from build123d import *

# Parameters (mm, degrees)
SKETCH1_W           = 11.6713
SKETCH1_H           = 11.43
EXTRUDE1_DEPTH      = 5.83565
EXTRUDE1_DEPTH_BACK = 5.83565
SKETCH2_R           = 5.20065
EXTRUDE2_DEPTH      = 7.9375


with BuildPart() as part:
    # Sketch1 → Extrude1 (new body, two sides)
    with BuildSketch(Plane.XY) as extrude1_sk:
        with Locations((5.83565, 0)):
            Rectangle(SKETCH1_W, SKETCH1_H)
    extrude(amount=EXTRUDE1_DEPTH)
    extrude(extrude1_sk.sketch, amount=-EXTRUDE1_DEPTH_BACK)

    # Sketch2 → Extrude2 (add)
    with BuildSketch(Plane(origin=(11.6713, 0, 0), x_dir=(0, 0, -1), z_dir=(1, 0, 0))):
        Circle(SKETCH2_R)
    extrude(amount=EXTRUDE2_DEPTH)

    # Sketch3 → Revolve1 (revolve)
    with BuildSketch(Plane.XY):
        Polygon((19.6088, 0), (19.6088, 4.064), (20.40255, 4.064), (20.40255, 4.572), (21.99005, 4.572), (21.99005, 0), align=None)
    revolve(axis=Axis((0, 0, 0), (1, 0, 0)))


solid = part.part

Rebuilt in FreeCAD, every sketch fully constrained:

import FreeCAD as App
import Part
import Sketcher
from FreeCAD import Vector
Q = App.Units.Quantity

doc = App.newDocument("Part")
body = doc.addObject("PartDesign::Body", "Body")

sketch1 = doc.addObject("Sketcher::SketchObject", "Sketch")
body.addObject(sketch1)
sketch1.AttachmentSupport = (doc.XY_Plane, [""])
sketch1.MapMode = "FlatFace"
sketch1.addGeometry([
    Part.LineSegment(Vector(0, 5.715, 0), Vector(0, -5.715, 0)),
    Part.LineSegment(Vector(0, -5.715, 0), Vector(11.6713, -5.715, 0)),
    Part.LineSegment(Vector(11.6713, -5.715, 0), Vector(11.6713, 5.715, 0)),
    Part.LineSegment(Vector(11.6713, 5.715, 0), Vector(0, 5.715, 0)),
], False)
sketch1.addConstraint([
    Sketcher.Constraint("Coincident", 0, 2, 1, 1),
    Sketcher.Constraint("Coincident", 1, 2, 2, 1),
    Sketcher.Constraint("Coincident", 2, 2, 3, 1),
    Sketcher.Constraint("Coincident", 3, 2, 0, 1),
    Sketcher.Constraint("Vertical", 0),
    Sketcher.Constraint("Horizontal", 1),
    Sketcher.Constraint("Vertical", 2),
    Sketcher.Constraint("Horizontal", 3),
    Sketcher.Constraint("Symmetric", 0, 2, 3, 2, -1, 1),
    Sketcher.Constraint("DistanceY", 0, 2, 0, 1, Q("0.45 in")),
    Sketcher.Constraint("DistanceX", 1, 1, 1, 2, Q("0.4595 in")),
])
pad1 = doc.addObject("PartDesign::Pad", "Pad")
body.addObject(pad1)
pad1.Profile = sketch1
pad1.Type = "TwoLengths"
pad1.Length = 5.83565
pad1.Length2 = 5.83565

sketch2 = doc.addObject("Sketcher::SketchObject", "Sketch001")
body.addObject(sketch2)
sketch2.AttachmentSupport = (doc.YZ_Plane, [""])
sketch2.MapMode = "FlatFace"
sketch2.AttachmentOffset = App.Placement(Vector(0, 0, 0.4595 * 25.4), App.Rotation())
sketch2.addGeometry(Part.Circle(Vector(0, 0, 0), Vector(0, 0, 1), 5.20065), False)
sketch2.addConstraint([
    Sketcher.Constraint("Coincident", 0, 3, -1, 1),
    Sketcher.Constraint("Diameter", 0, Q("0.4095 in")),
])
pad2 = doc.addObject("PartDesign::Pad", "Pad001")
body.addObject(pad2)
pad2.Profile = sketch2
pad2.Length = Q("0.3125 in")

sketch3 = doc.addObject("Sketcher::SketchObject", "Sketch002")
body.addObject(sketch3)
sketch3.AttachmentSupport = (doc.XY_Plane, [""])
sketch3.MapMode = "FlatFace"
sketch3.addGeometry([
    Part.LineSegment(Vector(19.6088, 4.064, 0), Vector(19.6088, 0, 0)),
    Part.LineSegment(Vector(19.6088, 0, 0), Vector(21.99005, 0, 0)),
    Part.LineSegment(Vector(21.99005, 0, 0), Vector(21.99005, 4.572, 0)),
    Part.LineSegment(Vector(21.99005, 4.572, 0), Vector(20.40255, 4.572, 0)),
    Part.LineSegment(Vector(20.40255, 4.572, 0), Vector(20.40255, 4.064, 0)),
    Part.LineSegment(Vector(20.40255, 4.064, 0), Vector(19.6088, 4.064, 0)),
], False)
sketch3.addConstraint([
    Sketcher.Constraint("Coincident", 0, 2, 1, 1),
    Sketcher.Constraint("Coincident", 1, 2, 2, 1),
    Sketcher.Constraint("Coincident", 2, 2, 3, 1),
    Sketcher.Constraint("Coincident", 3, 2, 4, 1),
    Sketcher.Constraint("Coincident", 4, 2, 5, 1),
    Sketcher.Constraint("Coincident", 5, 2, 0, 1),
    Sketcher.Constraint("Vertical", 0),
    Sketcher.Constraint("Horizontal", 1),
    Sketcher.Constraint("Vertical", 2),
    Sketcher.Constraint("Horizontal", 3),
    Sketcher.Constraint("Vertical", 4),
    Sketcher.Constraint("Horizontal", 5),
    Sketcher.Constraint("PointOnObject", 0, 2, -1),
    Sketcher.Constraint("DistanceY", 0, 2, 0, 1, Q("0.16 in")),
    Sketcher.Constraint("DistanceY", 2, 1, 2, 2, Q("0.18 in")),
    Sketcher.Constraint("DistanceX", 1, 1, 1, 2, Q("0.09375 in")),
    Sketcher.Constraint("DistanceX", 3, 2, 3, 1, Q("0.0625 in")),
    Sketcher.Constraint("DistanceX", -1, 1, 0, 2, Q("0.772 in")),
])
revolution = doc.addObject("PartDesign::Revolution", "Revolution")
body.addObject(revolution)
revolution.Profile = sketch3
revolution.ReferenceAxis = (sketch3, ["H_Axis"])
revolution.Angle = 360

doc.recompute()
